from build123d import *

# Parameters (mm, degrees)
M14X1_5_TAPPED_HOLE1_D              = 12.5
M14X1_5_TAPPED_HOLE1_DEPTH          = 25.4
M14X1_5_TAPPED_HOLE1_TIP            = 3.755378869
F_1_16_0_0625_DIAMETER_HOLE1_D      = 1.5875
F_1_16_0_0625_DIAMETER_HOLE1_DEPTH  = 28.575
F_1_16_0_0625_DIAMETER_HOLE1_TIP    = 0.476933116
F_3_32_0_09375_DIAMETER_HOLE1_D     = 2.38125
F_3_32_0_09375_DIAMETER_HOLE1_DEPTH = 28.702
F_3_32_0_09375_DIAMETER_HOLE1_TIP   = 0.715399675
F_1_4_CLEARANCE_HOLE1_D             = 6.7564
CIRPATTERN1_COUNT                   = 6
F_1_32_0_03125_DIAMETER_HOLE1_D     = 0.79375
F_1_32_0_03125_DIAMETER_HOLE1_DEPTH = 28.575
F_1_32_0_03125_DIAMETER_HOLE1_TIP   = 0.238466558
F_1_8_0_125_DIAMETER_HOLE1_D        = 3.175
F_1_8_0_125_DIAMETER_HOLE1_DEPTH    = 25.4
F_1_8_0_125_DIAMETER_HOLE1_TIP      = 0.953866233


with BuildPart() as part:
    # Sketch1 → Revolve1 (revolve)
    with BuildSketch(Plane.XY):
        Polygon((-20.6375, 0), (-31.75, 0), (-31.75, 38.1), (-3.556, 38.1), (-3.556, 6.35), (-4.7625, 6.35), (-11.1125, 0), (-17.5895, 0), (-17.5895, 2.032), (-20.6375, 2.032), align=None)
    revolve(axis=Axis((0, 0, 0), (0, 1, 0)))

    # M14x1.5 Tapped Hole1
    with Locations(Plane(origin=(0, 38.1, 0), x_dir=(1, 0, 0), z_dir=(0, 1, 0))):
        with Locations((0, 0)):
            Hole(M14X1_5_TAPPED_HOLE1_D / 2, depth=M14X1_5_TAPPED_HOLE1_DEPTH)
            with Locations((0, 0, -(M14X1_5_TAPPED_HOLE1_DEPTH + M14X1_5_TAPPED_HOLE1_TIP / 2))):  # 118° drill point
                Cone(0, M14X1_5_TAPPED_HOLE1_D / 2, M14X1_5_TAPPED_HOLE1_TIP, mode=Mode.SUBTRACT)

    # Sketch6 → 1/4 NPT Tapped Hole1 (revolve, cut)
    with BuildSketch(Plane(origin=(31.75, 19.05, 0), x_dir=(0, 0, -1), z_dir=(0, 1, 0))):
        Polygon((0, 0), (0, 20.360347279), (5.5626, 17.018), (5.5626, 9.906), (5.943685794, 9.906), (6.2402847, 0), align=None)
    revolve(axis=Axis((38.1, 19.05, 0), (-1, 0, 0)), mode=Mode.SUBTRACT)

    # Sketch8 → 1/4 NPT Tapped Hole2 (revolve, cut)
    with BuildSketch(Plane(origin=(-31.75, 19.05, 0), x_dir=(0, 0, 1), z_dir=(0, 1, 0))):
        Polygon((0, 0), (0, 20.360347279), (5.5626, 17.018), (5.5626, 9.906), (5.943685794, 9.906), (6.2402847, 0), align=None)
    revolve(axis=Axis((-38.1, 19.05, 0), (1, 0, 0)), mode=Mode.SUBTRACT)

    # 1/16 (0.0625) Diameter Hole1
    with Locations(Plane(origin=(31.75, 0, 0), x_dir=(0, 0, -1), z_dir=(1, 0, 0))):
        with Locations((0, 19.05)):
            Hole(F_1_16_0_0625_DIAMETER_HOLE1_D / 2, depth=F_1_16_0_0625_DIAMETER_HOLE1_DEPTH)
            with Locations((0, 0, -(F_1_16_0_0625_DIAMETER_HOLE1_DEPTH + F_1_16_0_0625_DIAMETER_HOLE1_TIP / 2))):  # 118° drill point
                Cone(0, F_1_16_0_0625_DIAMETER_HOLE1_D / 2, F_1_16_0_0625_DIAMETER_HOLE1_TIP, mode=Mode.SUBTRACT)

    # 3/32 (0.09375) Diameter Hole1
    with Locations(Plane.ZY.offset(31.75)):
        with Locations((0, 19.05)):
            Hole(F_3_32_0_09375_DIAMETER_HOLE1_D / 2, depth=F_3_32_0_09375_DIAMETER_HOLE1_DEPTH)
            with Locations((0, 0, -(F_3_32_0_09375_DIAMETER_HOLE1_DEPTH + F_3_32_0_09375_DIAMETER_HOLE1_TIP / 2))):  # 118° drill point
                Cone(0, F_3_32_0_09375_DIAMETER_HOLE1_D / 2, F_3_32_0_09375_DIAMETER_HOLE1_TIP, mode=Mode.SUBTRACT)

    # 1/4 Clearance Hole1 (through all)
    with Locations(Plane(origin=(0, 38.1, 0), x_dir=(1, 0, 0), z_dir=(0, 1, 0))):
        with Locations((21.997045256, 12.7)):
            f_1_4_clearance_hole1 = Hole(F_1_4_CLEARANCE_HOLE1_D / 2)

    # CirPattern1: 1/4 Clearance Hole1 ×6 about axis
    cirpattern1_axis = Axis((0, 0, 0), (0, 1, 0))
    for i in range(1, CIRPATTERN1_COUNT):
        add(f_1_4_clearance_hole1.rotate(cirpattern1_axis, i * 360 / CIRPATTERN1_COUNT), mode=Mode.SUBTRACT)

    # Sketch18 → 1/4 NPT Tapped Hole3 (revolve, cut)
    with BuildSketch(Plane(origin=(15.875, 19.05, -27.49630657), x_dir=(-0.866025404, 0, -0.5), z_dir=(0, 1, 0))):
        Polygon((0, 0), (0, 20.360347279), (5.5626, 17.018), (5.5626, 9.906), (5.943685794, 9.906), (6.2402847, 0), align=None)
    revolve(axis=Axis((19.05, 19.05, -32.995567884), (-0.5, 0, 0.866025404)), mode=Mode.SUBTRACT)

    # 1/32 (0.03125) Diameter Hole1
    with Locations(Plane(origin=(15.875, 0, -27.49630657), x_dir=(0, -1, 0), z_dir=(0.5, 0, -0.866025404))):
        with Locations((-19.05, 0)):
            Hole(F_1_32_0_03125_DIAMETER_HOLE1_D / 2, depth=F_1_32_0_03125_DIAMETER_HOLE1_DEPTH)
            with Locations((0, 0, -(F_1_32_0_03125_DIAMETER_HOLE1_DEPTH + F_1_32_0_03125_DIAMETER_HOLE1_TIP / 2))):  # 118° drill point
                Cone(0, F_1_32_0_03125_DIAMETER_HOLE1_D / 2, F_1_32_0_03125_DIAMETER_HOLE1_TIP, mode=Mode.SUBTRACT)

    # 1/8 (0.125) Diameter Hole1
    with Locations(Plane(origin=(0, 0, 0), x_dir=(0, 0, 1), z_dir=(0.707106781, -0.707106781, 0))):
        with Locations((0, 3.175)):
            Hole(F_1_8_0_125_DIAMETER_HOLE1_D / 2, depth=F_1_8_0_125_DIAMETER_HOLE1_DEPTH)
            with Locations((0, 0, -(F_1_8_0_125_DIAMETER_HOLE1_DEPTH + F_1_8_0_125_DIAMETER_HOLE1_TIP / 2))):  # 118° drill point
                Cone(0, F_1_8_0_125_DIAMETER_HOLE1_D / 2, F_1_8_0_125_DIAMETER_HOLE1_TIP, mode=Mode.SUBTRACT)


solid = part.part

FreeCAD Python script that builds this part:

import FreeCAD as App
import Part
import Sketcher
Q = App.Units.Quantity

doc = App.newDocument("Part")
body = doc.addObject("PartDesign::Body", "Body")

sketch1 = body.newObject("Sketcher::SketchObject", "Sketch")
sketch1.AttachmentSupport = (doc.getObject("XY_Plane"), [""])
sketch1.MapMode = "FlatFace"
sketch1.addGeometry([
    Part.LineSegment(App.Vector(-31.8, 0, 0), App.Vector(-20.6, 0, 0)),
    Part.LineSegment(App.Vector(-20.6, 0, 0), App.Vector(-20.6, 2, 0)),
    Part.LineSegment(App.Vector(-20.6, 2, 0), App.Vector(-17.6, 2, 0)),
    Part.LineSegment(App.Vector(-17.6, 2, 0), App.Vector(-17.6, 0, 0)),
    Part.LineSegment(App.Vector(-17.6, 0, 0), App.Vector(-11.1, 0, 0)),
    Part.LineSegment(App.Vector(-11.1, 0, 0), App.Vector(-4.8, 6.3, 0)),
    Part.LineSegment(App.Vector(-4.8, 6.3, 0), App.Vector(-3.6, 6.3, 0)),
    Part.LineSegment(App.Vector(-3.6, 6.3, 0), App.Vector(-3.6, 38.1, 0)),
    Part.LineSegment(App.Vector(-3.6, 38.1, 0), App.Vector(-31.8, 38.1, 0)),
    Part.LineSegment(App.Vector(-31.8, 38.1, 0), App.Vector(-31.8, 0, 0)),
], False)
sketch1.addConstraint([
    Sketcher.Constraint("Coincident", 0, 2, 1, 1),
    Sketcher.Constraint("Coincident", 1, 2, 2, 1),
    Sketcher.Constraint("Coincident", 2, 2, 3, 1),
    Sketcher.Constraint("Coincident", 3, 2, 4, 1),
    Sketcher.Constraint("Coincident", 4, 2, 5, 1),
    Sketcher.Constraint("Coincident", 5, 2, 6, 1),
    Sketcher.Constraint("Coincident", 6, 2, 7, 1),
    Sketcher.Constraint("Coincident", 7, 2, 8, 1),
    Sketcher.Constraint("Coincident", 8, 2, 9, 1),
    Sketcher.Constraint("Coincident", 9, 2, 0, 1),
    Sketcher.Constraint("Horizontal", 0),
    Sketcher.Constraint("Vertical", 1),
    Sketcher.Constraint("Horizontal", 2),
    Sketcher.Constraint("Vertical", 3),
    Sketcher.Constraint("Horizontal", 4),
    Sketcher.Constraint("Horizontal", 6),
    Sketcher.Constraint("Vertical", 7),
    Sketcher.Constraint("Horizontal", 8),
    Sketcher.Constraint("Vertical", 9),
    Sketcher.Constraint("PointOnObject", 0, 2, -1),
    Sketcher.Constraint("PointOnObject", 3, 2, -1),
    Sketcher.Constraint("DistanceY", 9, 2, 9, 1, Q("1.5 in")),
    Sketcher.Constraint("Angle", 5, Q("45 deg")),
    Sketcher.Constraint("DistanceX", 2, 1, 2, 2, Q("0.12 in")),
    Sketcher.Constraint("DistanceX", 8, 2, 8, 1, Q("1.11 in")),
    Sketcher.Constraint("DistanceY", 1, 1, 1, 2, Q("0.08 in")),
    Sketcher.Constraint("DistanceY", 7, 1, 7, 2, Q("1.25 in")),
    Sketcher.Constraint("DistanceX", 0, 1, 0, 2, Q("0.4375 in")),
    Sketcher.Constraint("DistanceX", 4, 1, 4, 2, Q("0.255 in")),
    Sketcher.Constraint("DistanceX", 6, 2, -1, 1, Q("0.14 in")),
])
revolution = body.newObject("PartDesign::Revolution", "Revolution")
revolution.Profile = sketch1
revolution.ReferenceAxis = (sketch1, ["V_Axis"])
revolution.Angle = 360

sketch2 = body.newObject("Sketcher::SketchObject", "Sketch001")
sketch2.AttachmentSupport = (doc.getObject("XZ_Plane"), [""])
sketch2.MapMode = "FlatFace"
sketch2.AttachmentOffset = App.Placement(App.Vector(0, 0, -1.5 * 25.4), App.Rotation())
sketch2.addGeometry(Part.Circle(App.Vector(0, 0, 0), App.Vector(0, 0, 1), 6), False)
sketch2.addConstraint([
    Sketcher.Constraint("Coincident", 0, 3, -1, 1),
    Sketcher.Constraint("Diameter", 0, 12.5),
])
doc.recompute()
hole = body.newObject("PartDesign::Hole", "Hole")
hole.Profile = sketch2
hole.ThreadType = "None"
hole.Diameter = 12.5
hole.DepthType = "Dimension"
hole.Depth = Q("1 in")
hole.DrillPoint = "Angled"
hole.DrillPointAngle = 118
hole.Reversed = True

sketch3 = body.newObject("Sketcher::SketchObject", "Sketch002")
sketch3.AttachmentSupport = (doc.getObject("XZ_Plane"), [""])
sketch3.MapMode = "FlatFace"
sketch3.AttachmentOffset = App.Placement(App.Vector(0, 0, -0.75 * 25.4), App.Rotation())
sketch3.addGeometry([
    Part.LineSegment(App.Vector(11.39, 0, 0), App.Vector(31.75, 0, 0)),
    Part.LineSegment(App.Vector(31.75, 0, 0), App.Vector(31.75, -6.24, 0)),
    Part.LineSegment(App.Vector(31.75, -6.24, 0), App.Vector(21.84, -5.94, 0)),
    Part.LineSegment(App.Vector(21.84, -5.94, 0), App.Vector(21.84, -5.56, 0)),
    Part.LineSegment(App.Vector(21.84, -5.56, 0), App.Vector(14.73, -5.56, 0)),
    Part.LineSegment(App.Vector(14.73, -5.56, 0), App.Vector(11.39, 0, 0)),
], False)
sketch3.addConstraint([
    Sketcher.Constraint("Coincident", 0, 2, 1, 1),
    Sketcher.Constraint("Coincident", 1, 2, 2, 1),
    Sketcher.Constraint("Coincident", 2, 2, 3, 1),
    Sketcher.Constraint("Coincident", 3, 2, 4, 1),
    Sketcher.Constraint("Coincident", 4, 2, 5, 1),
    Sketcher.Constraint("Coincident", 5, 2, 0, 1),
    Sketcher.Constraint("Horizontal", 0),
    Sketcher.Constraint("Vertical", 1),
    Sketcher.Constraint("Vertical", 3),
    Sketcher.Constraint("Horizontal", 4),
    Sketcher.Constraint("PointOnObject", 0, 2, -1),
    Sketcher.Constraint("Angle", 5, Q("121 deg")),
    Sketcher.Constraint("DistanceX", 4, 2, 4, 1, Q("0.28 in")),
    Sketcher.Constraint("DistanceX", -1, 1, 0, 2, Q("1.25 in")),
    Sketcher.Constraint("DistanceX", -1, 1, 2, 2, Q("0.86 in")),
    Sketcher.Constraint("DistanceY", 3, 2, -1, 1, Q("0.219 in")),
    Sketcher.Constraint("DistanceY", 1, 2, 2, 2, 0.296599),
    Sketcher.Constraint("DistanceY", 1, 2, 1, 1, 6.240285),
])
groove = body.newObject("PartDesign::Groove", "Groove")
groove.Profile = sketch3
groove.ReferenceAxis = (sketch3, ["H_Axis"])
groove.Angle = 360

sketch4 = body.newObject("Sketcher::SketchObject", "Sketch003")
sketch4.AttachmentSupport = (doc.getObject("XZ_Plane"), [""])
sketch4.MapMode = "FlatFace"
sketch4.AttachmentOffset = App.Placement(App.Vector(0, 0, -0.75 * 25.4), App.Rotation())
sketch4.addGeometry([
    Part.LineSegment(App.Vector(-11.39, 0, 0), App.Vector(-31.75, 0, 0)),
    Part.LineSegment(App.Vector(-31.75, 0, 0), App.Vector(-31.75, 6.24, 0)),
    Part.LineSegment(App.Vector(-31.75, 6.24, 0), App.Vector(-21.84, 5.94, 0)),
    Part.LineSegment(App.Vector(-21.84, 5.94, 0), App.Vector(-21.84, 5.56, 0)),
    Part.LineSegment(App.Vector(-21.84, 5.56, 0), App.Vector(-14.73, 5.56, 0)),
    Part.LineSegment(App.Vector(-14.73, 5.56, 0), App.Vector(-11.39, 0, 0)),
], False)
sketch4.addConstraint([
    Sketcher.Constraint("Coincident", 0, 2, 1, 1),
    Sketcher.Constraint("Coincident", 1, 2, 2, 1),
    Sketcher.Constraint("Coincident", 2, 2, 3, 1),
    Sketcher.Constraint("Coincident", 3, 2, 4, 1),
    Sketcher.Constraint("Coincident", 4, 2, 5, 1),
    Sketcher.Constraint("Coincident", 5, 2, 0, 1),
    Sketcher.Constraint("Horizontal", 0),
    Sketcher.Constraint("Vertical", 1),
    Sketcher.Constraint("Vertical", 3),
    Sketcher.Constraint("Horizontal", 4),
    Sketcher.Constraint("PointOnObject", 0, 2, -1),
    Sketcher.Constraint("Angle", 5, Q("-59 deg")),
    Sketcher.Constraint("DistanceX", 4, 1, 4, 2, Q("0.28 in")),
    Sketcher.Constraint("DistanceX", 0, 2, -1, 1, Q("1.25 in")),
    Sketcher.Constraint("DistanceX", 2, 2, -1, 1, Q("0.86 in")),
    Sketcher.Constraint("DistanceY", -1, 1, 3, 2, Q("0.219 in")),
    Sketcher.Constraint("DistanceY", 2, 2, 1, 2, 0.296599),
    Sketcher.Constraint("DistanceY", 1, 1, 1, 2, 6.240285),
])
groove2 = body.newObject("PartDesign::Groove", "Groove001")
groove2.Profile = sketch4
groove2.ReferenceAxis = (sketch4, ["H_Axis"])
groove2.Angle = 360

sketch5 = body.newObject("Sketcher::SketchObject", "Sketch004")
sketch5.AttachmentSupport = (doc.getObject("YZ_Plane"), [""])
sketch5.MapMode = "FlatFace"
sketch5.AttachmentOffset = App.Placement(App.Vector(0, 0, 1.25 * 25.4), App.Rotation())
sketch5.addGeometry(Part.Circle(App.Vector(19.1, 0, 0), App.Vector(0, 0, 1), 0.8), False)
sketch5.addConstraint([
    Sketcher.Constraint("PointOnObject", 0, 3, -1),
    Sketcher.Constraint("Diameter", 0, Q("0.0625 in")),
    Sketcher.Constraint("DistanceX", -1, 1, 0, 3, Q("0.75 in")),
])
doc.recompute()
hole2 = body.newObject("PartDesign::Hole", "Hole001")
hole2.Profile = sketch5
hole2.ThreadType = "None"
hole2.Diameter = Q("0.0625 in")
hole2.DepthType = "Dimension"
hole2.Depth = Q("1.125 in")
hole2.DrillPoint = "Angled"
hole2.DrillPointAngle = 118

sketch6 = body.newObject("Sketcher::SketchObject", "Sketch005")
sketch6.AttachmentSupport = (doc.getObject("YZ_Plane"), [""])
sketch6.MapMode = "FlatFace"
sketch6.AttachmentOffset = App.Placement(App.Vector(0, 0, -1.25 * 25.4), App.Rotation())
sketch6.addGeometry(Part.Circle(App.Vector(19.1, 0, 0), App.Vector(0, 0, 1), 1.2), False)
sketch6.addConstraint([
    Sketcher.Constraint("PointOnObject", 0, 3, -1),
    Sketcher.Constraint("Diameter", 0, Q("0.09375 in")),
    Sketcher.Constraint("DistanceX", -1, 1, 0, 3, Q("0.75 in")),
])
doc.recompute()
hole3 = body.newObject("PartDesign::Hole", "Hole002")
hole3.Profile = sketch6
hole3.ThreadType = "None"
hole3.Diameter = Q("0.09375 in")
hole3.DepthType = "Dimension"
hole3.Depth = Q("1.13 in")
hole3.DrillPoint = "Angled"
hole3.DrillPointAngle = 118
hole3.Reversed = True

sketch7 = body.newObject("Sketcher::SketchObject", "Sketch006")
sketch7.AttachmentSupport = (doc.getObject("XZ_Plane"), [""])
sketch7.MapMode = "FlatFace"
sketch7.AttachmentOffset = App.Placement(App.Vector(0, 0, -1.5 * 25.4), App.Rotation())
sketch7.addGeometry(Part.Circle(App.Vector(22, -12.7, 0), App.Vector(0, 0, 1), 3.4), False)
sketch7.addConstraint([
    Sketcher.Constraint("Diameter", 0, Q("0.266 in")),
    Sketcher.Constraint("DistanceY", 0, 3, -1, 1, Q("0.5 in")),
    Sketcher.Constraint("DistanceX", -1, 1, 0, 3, 21.997045),
])
doc.recompute()
hole4 = body.newObject("PartDesign::Hole", "Hole003")
hole4.Profile = sketch7
hole4.ThreadType = "None"
hole4.Diameter = Q("0.266 in")
hole4.DepthType = "ThroughAll"
hole4.Reversed = True
doc.recompute()

polarpattern = body.newObject("PartDesign::PolarPattern", "PolarPattern")
polarpattern.Originals = [hole4]
polarpattern.Axis = (doc.getObject("Y_Axis"), [""])
polarpattern.Angle = 360
polarpattern.Occurrences = 6
body.Tip = polarpattern

sketch8 = body.newObject("Sketcher::SketchObject", "Sketch007")
sketch8.AttachmentSupport = (doc.getObject("XZ_Plane"), [""])
sketch8.MapMode = "FlatFace"
sketch8.AttachmentOffset = App.Placement(App.Vector(0, 0, -0.75 * 25.4), App.Rotation())
sketch8.addGeometry([
    Part.LineSegment(App.Vector(5.69, -9.86, 0), App.Vector(15.88, -27.5, 0)),
    Part.LineSegment(App.Vector(15.88, -27.5, 0), App.Vector(10.47, -30.62, 0)),
    Part.LineSegment(App.Vector(10.47, -30.62, 0), App.Vector(5.77, -21.89, 0)),
    Part.LineSegment(App.Vector(5.77, -21.89, 0), App.Vector(6.1, -21.7, 0)),
    Part.LineSegment(App.Vector(6.1, -21.7, 0), App.Vector(2.55, -15.54, 0)),
    Part.LineSegment(App.Vector(2.55, -15.54, 0), App.Vector(5.69, -9.86, 0)),
], False)
sketch8.addGeometry(Part.LineSegment(App.Vector(15.88, -27.5, 0), App.Vector(5.69, -9.86, 0)), True)
sketch8.addConstraint([
    Sketcher.Constraint("Coincident", 0, 2, 1, 1),
    Sketcher.Constraint("Coincident", 1, 2, 2, 1),
    Sketcher.Constraint("Coincident", 2, 2, 3, 1),
    Sketcher.Constraint("Coincident", 3, 2, 4, 1),
    Sketcher.Constraint("Coincident", 4, 2, 5, 1),
    Sketcher.Constraint("Coincident", 5, 2, 0, 1),
    Sketcher.Constraint("Coincident", 6, 1, 0, 2),
    Sketcher.Constraint("Coincident", 6, 2, 5, 2),
    Sketcher.Constraint("Perpendicular", 0, 1),
    Sketcher.Constraint("Parallel", 1, 3),
    Sketcher.Constraint("Perpendicular", 3, 4),
    Sketcher.Constraint("Angle", 0, Q("-60 deg")),
    Sketcher.Constraint("Angle", 5, Q("61 deg")),
    Sketcher.Constraint("Distance", 4, Q("0.28 in")),
    Sketcher.Constraint("DistanceX", -1, 1, 0, 2, Q("0.625 in")),
    Sketcher.Constraint("DistanceY", 2, 2, -1, 1, 21.889302),
    Sketcher.Constraint("Distance", 2, 9.910439),
    Sketcher.Constraint("DistanceY", 1, 2, -1, 1, 30.616449),
    Sketcher.Constraint("DistanceY", 3, 2, -1, 1, 21.698759),
    Sketcher.Constraint("DistanceY", 5, 2, -1, 1, 9.863729),
])
groove3 = body.newObject("PartDesign::Groove", "Groove002")
groove3.Profile = sketch8
groove3.ReferenceAxis = (sketch8, ["Axis0"])
groove3.Angle = 360

sketch9 = body.newObject("Sketcher::SketchObject", "Sketch008")
sketch9.Placement = App.Placement(App.Vector(15.875, 0, -27.496307), App.Rotation(App.Vector(0, -1, 0), App.Vector(-0.866025404, 0, -0.5), App.Vector(0.5, 0, -0.866025404), "ZXY"))
sketch9.addGeometry(Part.Circle(App.Vector(-19.05, 0, 0), App.Vector(0, 0, 1), 0.4), False)
sketch9.addConstraint([
    Sketcher.Constraint("PointOnObject", 0, 3, -1),
    Sketcher.Constraint("Diameter", 0, Q("0.03125 in")),
    Sketcher.Constraint("DistanceX", 0, 3, -1, 1, Q("0.75 in")),
])
doc.recompute()
hole5 = body.newObject("PartDesign::Hole", "Hole004")
hole5.Profile = sketch9
hole5.ThreadType = "None"
hole5.Diameter = Q("0.03125 in")
hole5.DepthType = "Dimension"
hole5.Depth = Q("1.125 in")
hole5.DrillPoint = "Angled"
hole5.DrillPointAngle = 118

sketch10 = body.newObject("Sketcher::SketchObject", "Sketch009")
sketch10.Placement = App.Placement(App.Vector(0, 0, 0), App.Rotation(App.Vector(0, 0, 1), App.Vector(-0.707106781, -0.707106781, 0), App.Vector(0.707106781, -0.707106781, 0), "ZXY"))
sketch10.addGeometry(Part.Circle(App.Vector(0, 3.2, 0), App.Vector(0, 0, 1), 1.6), False)
sketch10.addConstraint([
    Sketcher.Constraint("PointOnObject", 0, 3, -2),
    Sketcher.Constraint("Diameter", 0, Q("0.125 in")),
    Sketcher.Constraint("DistanceY", -1, 1, 0, 3, Q("0.125 in")),
])
doc.recompute()
hole6 = body.newObject("PartDesign::Hole", "Hole005")
hole6.Profile = sketch10
hole6.ThreadType = "None"
hole6.Diameter = Q("0.125 in")
hole6.DepthType = "Dimension"
hole6.Depth = Q("1 in")
hole6.DrillPoint = "Angled"
hole6.DrillPointAngle = 118

doc.recompute()
